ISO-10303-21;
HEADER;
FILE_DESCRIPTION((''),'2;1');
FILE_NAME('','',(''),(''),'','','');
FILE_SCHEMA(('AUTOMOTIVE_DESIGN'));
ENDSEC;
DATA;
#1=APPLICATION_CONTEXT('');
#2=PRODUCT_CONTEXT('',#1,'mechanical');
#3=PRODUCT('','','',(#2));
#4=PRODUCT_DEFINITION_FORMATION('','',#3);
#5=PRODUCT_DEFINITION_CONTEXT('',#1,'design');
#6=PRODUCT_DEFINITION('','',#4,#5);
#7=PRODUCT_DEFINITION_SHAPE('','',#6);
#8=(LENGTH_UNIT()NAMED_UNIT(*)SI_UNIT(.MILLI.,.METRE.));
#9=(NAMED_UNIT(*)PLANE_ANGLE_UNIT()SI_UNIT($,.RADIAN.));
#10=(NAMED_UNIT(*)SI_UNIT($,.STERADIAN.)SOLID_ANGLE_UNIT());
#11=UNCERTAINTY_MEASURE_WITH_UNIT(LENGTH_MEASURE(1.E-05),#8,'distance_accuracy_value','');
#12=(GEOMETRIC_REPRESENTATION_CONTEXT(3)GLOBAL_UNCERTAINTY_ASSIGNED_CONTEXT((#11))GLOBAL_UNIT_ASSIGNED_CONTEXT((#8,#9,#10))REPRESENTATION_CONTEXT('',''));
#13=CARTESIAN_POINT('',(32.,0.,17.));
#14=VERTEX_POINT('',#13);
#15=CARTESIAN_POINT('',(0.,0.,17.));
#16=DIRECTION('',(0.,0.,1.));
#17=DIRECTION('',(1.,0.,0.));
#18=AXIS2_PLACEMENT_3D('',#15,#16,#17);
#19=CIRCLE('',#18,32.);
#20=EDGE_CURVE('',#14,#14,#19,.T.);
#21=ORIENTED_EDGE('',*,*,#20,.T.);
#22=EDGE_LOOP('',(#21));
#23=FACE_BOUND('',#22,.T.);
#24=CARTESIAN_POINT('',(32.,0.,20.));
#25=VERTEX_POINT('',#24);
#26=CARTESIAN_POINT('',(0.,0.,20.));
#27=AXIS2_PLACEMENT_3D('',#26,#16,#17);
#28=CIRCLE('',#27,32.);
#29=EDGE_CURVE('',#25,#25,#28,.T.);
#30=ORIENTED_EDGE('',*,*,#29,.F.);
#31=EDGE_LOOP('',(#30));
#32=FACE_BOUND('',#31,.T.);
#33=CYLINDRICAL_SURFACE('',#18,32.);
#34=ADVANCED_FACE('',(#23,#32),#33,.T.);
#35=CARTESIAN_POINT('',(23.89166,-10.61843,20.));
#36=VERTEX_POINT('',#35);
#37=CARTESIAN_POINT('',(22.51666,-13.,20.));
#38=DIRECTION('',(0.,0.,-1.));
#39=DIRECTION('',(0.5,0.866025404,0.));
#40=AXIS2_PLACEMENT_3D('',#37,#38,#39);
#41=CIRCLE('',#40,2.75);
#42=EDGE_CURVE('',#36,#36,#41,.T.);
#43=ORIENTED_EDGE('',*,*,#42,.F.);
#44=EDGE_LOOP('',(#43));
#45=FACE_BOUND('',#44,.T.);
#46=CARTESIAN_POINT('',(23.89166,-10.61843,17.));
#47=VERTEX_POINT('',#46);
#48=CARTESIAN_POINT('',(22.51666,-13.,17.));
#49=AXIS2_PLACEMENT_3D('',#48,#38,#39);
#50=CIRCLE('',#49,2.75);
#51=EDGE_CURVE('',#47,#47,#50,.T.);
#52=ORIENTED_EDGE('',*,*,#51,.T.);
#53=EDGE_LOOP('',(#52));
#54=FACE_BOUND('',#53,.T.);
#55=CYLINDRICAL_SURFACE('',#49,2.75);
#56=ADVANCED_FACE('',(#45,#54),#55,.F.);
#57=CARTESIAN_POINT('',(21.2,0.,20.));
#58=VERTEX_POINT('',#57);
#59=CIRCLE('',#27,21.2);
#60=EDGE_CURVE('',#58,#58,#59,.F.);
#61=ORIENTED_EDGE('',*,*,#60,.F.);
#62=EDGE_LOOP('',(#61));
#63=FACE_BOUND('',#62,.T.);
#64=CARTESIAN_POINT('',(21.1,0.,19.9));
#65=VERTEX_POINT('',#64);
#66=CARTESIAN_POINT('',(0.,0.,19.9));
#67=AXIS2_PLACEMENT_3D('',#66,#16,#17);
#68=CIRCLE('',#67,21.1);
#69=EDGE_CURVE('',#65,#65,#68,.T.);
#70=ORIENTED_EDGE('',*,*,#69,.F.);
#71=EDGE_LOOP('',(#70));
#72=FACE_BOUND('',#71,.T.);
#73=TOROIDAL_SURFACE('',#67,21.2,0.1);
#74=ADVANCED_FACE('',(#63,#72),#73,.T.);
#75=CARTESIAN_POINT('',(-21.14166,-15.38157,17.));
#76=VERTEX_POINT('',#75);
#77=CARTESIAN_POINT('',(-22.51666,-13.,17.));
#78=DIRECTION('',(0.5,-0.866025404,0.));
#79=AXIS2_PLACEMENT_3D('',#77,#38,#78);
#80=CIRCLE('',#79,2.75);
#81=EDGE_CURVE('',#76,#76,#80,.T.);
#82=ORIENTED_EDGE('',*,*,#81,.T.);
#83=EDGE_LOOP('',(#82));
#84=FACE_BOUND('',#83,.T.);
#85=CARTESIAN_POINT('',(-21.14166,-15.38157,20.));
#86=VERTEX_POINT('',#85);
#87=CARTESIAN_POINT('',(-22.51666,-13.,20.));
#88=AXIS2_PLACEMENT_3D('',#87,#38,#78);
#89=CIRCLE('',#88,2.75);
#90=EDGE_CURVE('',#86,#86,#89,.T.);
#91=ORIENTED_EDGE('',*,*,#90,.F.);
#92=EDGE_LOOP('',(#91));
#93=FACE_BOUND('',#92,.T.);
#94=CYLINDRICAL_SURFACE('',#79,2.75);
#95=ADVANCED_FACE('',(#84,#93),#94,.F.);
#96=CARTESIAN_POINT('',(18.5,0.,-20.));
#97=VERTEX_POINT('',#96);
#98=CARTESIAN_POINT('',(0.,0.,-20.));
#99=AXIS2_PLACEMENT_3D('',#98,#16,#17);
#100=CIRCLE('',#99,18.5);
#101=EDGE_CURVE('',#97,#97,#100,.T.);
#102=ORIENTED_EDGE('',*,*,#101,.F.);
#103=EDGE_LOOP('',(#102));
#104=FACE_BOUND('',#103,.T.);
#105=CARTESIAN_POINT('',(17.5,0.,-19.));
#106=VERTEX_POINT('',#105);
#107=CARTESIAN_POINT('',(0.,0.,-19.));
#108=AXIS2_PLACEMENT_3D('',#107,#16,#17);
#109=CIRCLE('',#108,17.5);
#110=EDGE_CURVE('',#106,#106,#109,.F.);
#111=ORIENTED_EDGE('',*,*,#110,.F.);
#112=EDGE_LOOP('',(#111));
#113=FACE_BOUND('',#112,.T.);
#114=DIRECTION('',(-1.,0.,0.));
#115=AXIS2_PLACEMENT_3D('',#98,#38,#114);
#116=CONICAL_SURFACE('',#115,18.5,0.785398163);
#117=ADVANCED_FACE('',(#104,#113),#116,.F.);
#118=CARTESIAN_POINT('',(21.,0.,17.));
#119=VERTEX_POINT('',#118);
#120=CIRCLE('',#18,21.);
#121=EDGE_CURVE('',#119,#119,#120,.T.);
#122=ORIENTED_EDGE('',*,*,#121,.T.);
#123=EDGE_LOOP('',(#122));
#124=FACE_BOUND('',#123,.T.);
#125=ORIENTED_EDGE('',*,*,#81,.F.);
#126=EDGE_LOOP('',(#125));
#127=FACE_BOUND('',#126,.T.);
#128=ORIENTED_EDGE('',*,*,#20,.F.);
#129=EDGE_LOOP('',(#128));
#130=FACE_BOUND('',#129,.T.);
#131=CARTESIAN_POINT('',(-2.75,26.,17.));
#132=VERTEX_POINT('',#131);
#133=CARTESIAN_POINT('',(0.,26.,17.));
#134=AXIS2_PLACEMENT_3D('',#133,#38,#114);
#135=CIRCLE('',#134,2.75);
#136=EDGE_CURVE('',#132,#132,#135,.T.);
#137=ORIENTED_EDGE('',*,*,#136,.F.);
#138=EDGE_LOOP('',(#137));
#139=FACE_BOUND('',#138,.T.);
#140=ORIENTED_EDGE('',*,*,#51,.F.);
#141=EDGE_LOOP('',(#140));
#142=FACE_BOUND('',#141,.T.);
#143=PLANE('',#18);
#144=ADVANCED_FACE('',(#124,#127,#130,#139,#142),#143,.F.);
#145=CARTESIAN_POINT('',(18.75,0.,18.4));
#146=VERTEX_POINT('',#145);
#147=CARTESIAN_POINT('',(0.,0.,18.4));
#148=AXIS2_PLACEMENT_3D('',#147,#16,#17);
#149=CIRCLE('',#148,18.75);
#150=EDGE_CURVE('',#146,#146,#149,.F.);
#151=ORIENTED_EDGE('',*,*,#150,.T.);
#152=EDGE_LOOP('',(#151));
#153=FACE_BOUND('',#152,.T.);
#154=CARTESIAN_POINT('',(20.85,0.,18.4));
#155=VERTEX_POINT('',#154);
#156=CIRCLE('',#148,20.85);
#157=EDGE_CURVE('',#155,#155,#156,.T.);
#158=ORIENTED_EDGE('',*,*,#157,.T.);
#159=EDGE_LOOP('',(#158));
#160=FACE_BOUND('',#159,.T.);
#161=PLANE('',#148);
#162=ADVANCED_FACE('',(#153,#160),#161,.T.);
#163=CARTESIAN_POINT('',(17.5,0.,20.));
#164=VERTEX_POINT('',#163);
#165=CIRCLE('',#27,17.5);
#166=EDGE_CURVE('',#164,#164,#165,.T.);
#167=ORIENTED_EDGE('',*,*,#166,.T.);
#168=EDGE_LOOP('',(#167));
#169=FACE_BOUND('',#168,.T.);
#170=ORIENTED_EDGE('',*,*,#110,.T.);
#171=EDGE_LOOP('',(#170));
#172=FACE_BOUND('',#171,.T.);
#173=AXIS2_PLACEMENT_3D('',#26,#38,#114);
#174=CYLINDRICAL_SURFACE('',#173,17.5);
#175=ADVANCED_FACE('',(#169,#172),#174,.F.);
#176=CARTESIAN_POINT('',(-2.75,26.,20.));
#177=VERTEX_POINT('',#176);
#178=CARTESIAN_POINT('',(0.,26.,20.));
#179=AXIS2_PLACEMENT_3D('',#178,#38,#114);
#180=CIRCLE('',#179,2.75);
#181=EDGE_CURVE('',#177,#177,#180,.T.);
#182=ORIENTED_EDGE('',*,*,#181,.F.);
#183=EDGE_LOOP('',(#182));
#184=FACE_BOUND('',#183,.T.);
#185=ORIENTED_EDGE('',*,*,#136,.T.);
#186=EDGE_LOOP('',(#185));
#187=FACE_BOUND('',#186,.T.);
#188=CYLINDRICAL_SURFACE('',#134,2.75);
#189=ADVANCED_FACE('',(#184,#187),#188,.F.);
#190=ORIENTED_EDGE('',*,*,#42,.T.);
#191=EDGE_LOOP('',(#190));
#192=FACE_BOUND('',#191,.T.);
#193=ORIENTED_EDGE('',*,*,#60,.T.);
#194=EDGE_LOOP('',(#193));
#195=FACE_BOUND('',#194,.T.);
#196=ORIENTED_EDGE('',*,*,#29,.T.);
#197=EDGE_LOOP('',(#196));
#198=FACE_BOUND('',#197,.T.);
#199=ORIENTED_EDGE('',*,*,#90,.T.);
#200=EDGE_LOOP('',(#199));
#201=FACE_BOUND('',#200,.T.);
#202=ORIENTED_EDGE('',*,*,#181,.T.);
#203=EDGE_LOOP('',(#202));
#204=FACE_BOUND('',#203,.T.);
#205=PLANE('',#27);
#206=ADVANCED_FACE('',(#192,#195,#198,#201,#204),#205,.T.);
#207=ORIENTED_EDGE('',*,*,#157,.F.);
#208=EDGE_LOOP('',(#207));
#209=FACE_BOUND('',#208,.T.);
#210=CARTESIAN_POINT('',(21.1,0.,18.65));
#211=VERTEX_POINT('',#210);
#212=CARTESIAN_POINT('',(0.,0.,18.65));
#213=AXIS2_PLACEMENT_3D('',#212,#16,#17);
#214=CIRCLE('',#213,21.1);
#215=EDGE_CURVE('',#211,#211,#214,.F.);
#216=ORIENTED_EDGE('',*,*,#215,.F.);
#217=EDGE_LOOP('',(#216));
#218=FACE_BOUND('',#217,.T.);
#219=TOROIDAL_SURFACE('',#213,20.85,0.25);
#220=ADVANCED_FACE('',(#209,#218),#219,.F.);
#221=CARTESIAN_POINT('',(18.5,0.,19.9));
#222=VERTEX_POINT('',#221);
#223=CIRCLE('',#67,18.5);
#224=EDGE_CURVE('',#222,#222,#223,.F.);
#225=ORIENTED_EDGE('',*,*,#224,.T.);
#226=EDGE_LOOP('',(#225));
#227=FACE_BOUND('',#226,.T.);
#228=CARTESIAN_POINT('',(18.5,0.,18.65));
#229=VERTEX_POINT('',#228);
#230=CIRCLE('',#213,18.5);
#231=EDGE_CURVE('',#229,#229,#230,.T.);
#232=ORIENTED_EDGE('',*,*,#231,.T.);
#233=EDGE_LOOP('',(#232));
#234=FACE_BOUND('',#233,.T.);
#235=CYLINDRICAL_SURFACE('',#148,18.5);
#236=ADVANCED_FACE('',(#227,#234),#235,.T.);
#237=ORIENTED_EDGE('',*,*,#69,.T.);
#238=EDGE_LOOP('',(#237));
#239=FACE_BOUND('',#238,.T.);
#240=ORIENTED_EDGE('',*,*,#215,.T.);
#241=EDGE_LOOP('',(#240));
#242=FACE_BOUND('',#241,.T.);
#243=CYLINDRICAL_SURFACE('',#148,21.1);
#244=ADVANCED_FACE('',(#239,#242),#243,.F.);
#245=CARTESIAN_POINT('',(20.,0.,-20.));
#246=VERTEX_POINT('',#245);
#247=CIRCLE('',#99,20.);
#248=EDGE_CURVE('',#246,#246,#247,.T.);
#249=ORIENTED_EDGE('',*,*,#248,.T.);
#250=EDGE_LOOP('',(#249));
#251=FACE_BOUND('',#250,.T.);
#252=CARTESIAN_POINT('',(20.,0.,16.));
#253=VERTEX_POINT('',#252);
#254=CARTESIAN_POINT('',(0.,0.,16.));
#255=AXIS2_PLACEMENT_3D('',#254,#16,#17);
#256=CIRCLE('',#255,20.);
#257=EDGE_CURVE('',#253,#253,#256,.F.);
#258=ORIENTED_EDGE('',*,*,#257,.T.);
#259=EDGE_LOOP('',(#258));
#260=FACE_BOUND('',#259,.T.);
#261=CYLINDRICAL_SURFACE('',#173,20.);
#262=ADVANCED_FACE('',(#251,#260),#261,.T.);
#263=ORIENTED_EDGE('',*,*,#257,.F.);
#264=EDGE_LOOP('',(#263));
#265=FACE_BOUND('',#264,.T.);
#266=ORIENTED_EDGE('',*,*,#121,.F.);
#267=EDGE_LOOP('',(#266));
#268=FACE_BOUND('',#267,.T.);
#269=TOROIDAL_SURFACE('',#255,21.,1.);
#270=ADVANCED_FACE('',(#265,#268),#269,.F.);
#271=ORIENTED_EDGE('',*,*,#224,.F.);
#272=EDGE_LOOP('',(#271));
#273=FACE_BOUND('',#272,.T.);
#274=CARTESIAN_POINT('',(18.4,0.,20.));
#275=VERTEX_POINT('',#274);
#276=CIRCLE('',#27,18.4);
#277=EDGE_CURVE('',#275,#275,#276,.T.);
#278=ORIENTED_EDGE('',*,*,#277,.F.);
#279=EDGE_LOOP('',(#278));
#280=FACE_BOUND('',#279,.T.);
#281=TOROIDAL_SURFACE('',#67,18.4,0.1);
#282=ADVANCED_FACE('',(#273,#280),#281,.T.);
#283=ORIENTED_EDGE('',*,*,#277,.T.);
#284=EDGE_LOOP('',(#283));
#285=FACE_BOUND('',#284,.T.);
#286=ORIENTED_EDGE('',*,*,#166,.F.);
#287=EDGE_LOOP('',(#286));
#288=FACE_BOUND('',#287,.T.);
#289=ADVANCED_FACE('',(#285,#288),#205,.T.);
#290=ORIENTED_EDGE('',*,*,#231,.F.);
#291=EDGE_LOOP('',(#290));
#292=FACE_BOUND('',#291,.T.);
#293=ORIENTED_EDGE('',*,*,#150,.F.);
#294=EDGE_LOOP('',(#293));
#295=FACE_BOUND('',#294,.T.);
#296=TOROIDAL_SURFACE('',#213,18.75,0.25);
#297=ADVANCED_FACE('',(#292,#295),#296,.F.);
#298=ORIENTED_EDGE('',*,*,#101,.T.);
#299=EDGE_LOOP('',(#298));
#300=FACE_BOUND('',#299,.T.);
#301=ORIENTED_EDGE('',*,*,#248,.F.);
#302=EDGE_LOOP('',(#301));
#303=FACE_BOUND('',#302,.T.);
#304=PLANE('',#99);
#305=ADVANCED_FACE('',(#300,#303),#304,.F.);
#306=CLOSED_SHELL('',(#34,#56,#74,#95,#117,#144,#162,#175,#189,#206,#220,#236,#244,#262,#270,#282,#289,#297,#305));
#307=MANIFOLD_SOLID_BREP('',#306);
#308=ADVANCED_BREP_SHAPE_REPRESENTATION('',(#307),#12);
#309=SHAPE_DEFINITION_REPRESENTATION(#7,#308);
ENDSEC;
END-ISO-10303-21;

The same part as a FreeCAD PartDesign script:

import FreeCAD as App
import Part
import Sketcher

V = App.Vector


def edges_at(feature, points):
    """Names of the edges that pass closest to the given points."""
    edges = feature.Shape.Edges
    near = lambda p: min(range(len(edges)), key=lambda i: edges[i].distToShape(Part.Vertex(*p))[0])
    return sorted({f"Edge{near(p) + 1}" for p in points})


def add_polygon(sketch, points):
    """Adds a closed chain of lines whose ends are joined by coincident constraints."""
    first, n = sketch.GeometryCount, len(points)
    for a, b in zip(points, points[1:] + points[:1]):
        sketch.addGeometry(Part.LineSegment(App.Vector(*a, 0), App.Vector(*b, 0)), False)
    for i in range(n):
        sketch.addConstraint(Sketcher.Constraint("Coincident", first + i, 2, first + (i + 1) % n, 1))

doc = App.newDocument("Part")
body = doc.addObject("PartDesign::Body", "Body")

# Sketch on XY plane
sketch1 = body.newObject("Sketcher::SketchObject", "Sketch")
sketch1.AttachmentSupport = (doc.getObject("XY_Plane"), [""])
sketch1.MapMode = "FlatFace"
sketch1.addGeometry(Part.Circle(V(0, 0, 0), V(0, 0, 1), 20), False)
sketch1.addGeometry(Part.Circle(V(0, 0, 0), V(0, 0, 1), 17.5), False)
sketch1.addConstraint(Sketcher.Constraint("Coincident", 0, 3, -1, 1))
sketch1.addConstraint(Sketcher.Constraint("Coincident", 1, 3, -1, 1))
sketch1.addConstraint(Sketcher.Constraint("Diameter", 0, 40.0))
sketch1.addConstraint(Sketcher.Constraint("Diameter", 1, 35.0))
pad1 = body.newObject("PartDesign::Pad", "Pad")
pad1.Profile = sketch1
pad1.Length = 40
pad1.Midplane = True
doc.recompute()

chamfer = body.newObject("PartDesign::Chamfer", "Chamfer")
chamfer.Base = (pad1, edges_at(pad1, [(-17.5, 0, -20)]))
chamfer.Size = 1
body2 = doc.addObject("PartDesign::Body", "Body001")

# Sketch on XY plane
sketch2 = body2.newObject("Sketcher::SketchObject", "Sketch001")
sketch2.AttachmentSupport = (doc.getObject("XY_Plane001"), [""])
sketch2.MapMode = "FlatFace"
sketch2.AttachmentOffset = App.Placement(V(0, 0, 20), App.Rotation())
sketch2.addGeometry(Part.Circle(V(0, 0, 0), V(0, 0, 1), 32), False)
sketch2.addGeometry(Part.Circle(V(0, 0, 0), V(0, 0, 1), 20), False)
sketch2.addConstraint(Sketcher.Constraint("Coincident", 0, 3, -1, 1))
sketch2.addConstraint(Sketcher.Constraint("Coincident", 1, 3, -1, 1))
sketch2.addConstraint(Sketcher.Constraint("Diameter", 0, 64.0))
sketch2.addConstraint(Sketcher.Constraint("Diameter", 1, 40.0))
pad2 = body2.newObject("PartDesign::Pad", "Pad001")
pad2.Profile = sketch2
pad2.Length = 3
pad2.Reversed = True

# Sketch on YZ plane
sketch3 = body2.newObject("Sketcher::SketchObject", "Sketch002")
sketch3.AttachmentSupport = (doc.getObject("YZ_Plane001"), [""])
sketch3.MapMode = "FlatFace"
add_polygon(sketch3, [(26, 20), (26, 17), (28.75, 17), (28.75, 20)])  # lines 0-3
sketch3.addGeometry(Part.LineSegment(V(26, 17, 0), V(26, 20, 0)), True)  # axis
sketch3.addConstraint(Sketcher.Constraint("Vertical", 0))
sketch3.addConstraint(Sketcher.Constraint("Horizontal", 1))
sketch3.addConstraint(Sketcher.Constraint("Vertical", 2))
sketch3.addConstraint(Sketcher.Constraint("Horizontal", 3))
sketch3.addConstraint(Sketcher.Constraint("Vertical", 4))
sketch3.addConstraint(Sketcher.Constraint("Coincident", 4, 1, 0, 2))
sketch3.addConstraint(Sketcher.Constraint("Horizontal", 2, 2, 4, 2))
sketch3.addConstraint(Sketcher.Constraint("DistanceY", 0, 2, 0, 1, 3.0))
sketch3.addConstraint(Sketcher.Constraint("DistanceX", -1, 1, 0, 2, 26.0))
sketch3.addConstraint(Sketcher.Constraint("DistanceY", -1, 1, 0, 2, 17.0))
sketch3.addConstraint(Sketcher.Constraint("DistanceX", 1, 1, 1, 2, 2.75))
groove = body2.newObject("PartDesign::Groove", "Groove")
groove.Profile = sketch3
groove.ReferenceAxis = (sketch3, ["Axis0"])
groove.Angle = 360
doc.recompute()

polarpattern = body2.newObject("PartDesign::PolarPattern", "PolarPattern")
polarpattern.Originals = [groove]
polarpattern.Axis = (doc.getObject("Z_Axis001"), [""])
polarpattern.Angle = 360
polarpattern.Occurrences = 3
body2.Tip = polarpattern
doc.recompute()

boolean = body.newObject("PartDesign::Boolean", "Boolean")
boolean.Type = "Fuse"
boolean.addObjects([body2])

# Sketch on XY plane
sketch4 = body.newObject("Sketcher::SketchObject", "Sketch003")
sketch4.AttachmentSupport = (doc.getObject("XY_Plane"), [""])
sketch4.MapMode = "FlatFace"
sketch4.AttachmentOffset = App.Placement(V(0, 0, 20), App.Rotation())
sketch4.addGeometry(Part.Circle(V(0, 0, 0), V(0, 0, 1), 21.1), False)
sketch4.addGeometry(Part.Circle(V(0, 0, 0), V(0, 0, 1), 18.5), False)
sketch4.addConstraint(Sketcher.Constraint("Coincident", 0, 3, -1, 1))
sketch4.addConstraint(Sketcher.Constraint("Coincident", 1, 3, -1, 1))
sketch4.addConstraint(Sketcher.Constraint("Diameter", 1, 37.0))
sketch4.addConstraint(Sketcher.Constraint("Diameter", 0, 42.2))
pocket1 = body.newObject("PartDesign::Pocket", "Pocket")
pocket1.Profile = sketch4
pocket1.Length = 1.6
doc.recompute()

fillet = body.newObject("PartDesign::Fillet", "Fillet")
fillet.Base = (pocket1, edges_at(pocket1, [(-21.1, 0, 18.4), (-18.5, 0, 18.4)]))
fillet.Radius = 0.25
doc.recompute()

fillet2 = body.newObject("PartDesign::Fillet", "Fillet001")
fillet2.Base = (fillet, edges_at(fillet, [(-21.1, 0, 20), (-18.5, 0, 20)]))
fillet2.Radius = 0.1
doc.recompute()

fillet3 = body.newObject("PartDesign::Fillet", "Fillet002")
fillet3.Base = (fillet2, edges_at(fillet2, [(-20, 0, 17)]))
fillet3.Radius = 1

doc.recompute()
